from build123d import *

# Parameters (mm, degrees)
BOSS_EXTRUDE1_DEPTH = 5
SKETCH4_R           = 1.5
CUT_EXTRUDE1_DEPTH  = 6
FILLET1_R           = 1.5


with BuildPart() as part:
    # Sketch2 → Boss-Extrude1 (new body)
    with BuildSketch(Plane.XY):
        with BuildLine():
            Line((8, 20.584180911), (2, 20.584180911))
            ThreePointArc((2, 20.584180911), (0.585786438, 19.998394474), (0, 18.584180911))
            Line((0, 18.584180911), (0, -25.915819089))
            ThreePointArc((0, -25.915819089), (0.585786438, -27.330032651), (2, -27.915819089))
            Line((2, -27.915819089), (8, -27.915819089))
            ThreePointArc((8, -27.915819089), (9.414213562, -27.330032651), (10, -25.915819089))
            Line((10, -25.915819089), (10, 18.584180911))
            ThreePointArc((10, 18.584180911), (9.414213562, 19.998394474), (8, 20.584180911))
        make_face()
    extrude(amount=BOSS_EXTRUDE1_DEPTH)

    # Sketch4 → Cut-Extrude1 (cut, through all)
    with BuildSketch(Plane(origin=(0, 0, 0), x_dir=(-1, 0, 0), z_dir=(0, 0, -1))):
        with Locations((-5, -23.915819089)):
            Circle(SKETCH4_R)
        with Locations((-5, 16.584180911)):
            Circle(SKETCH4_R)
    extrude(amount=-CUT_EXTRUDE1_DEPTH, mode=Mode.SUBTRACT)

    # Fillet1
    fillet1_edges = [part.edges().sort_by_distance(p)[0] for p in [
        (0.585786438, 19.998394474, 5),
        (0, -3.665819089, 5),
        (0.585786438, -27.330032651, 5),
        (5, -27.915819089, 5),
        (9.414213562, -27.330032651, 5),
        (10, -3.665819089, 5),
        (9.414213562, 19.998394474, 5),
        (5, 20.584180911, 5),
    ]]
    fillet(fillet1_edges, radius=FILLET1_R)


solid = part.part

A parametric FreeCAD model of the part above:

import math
import FreeCAD as App
import Part
import Sketcher
from FreeCAD import Vector
Q = App.Units.Quantity


def edges_at(feature, points):
    """Names of the edges that pass closest to the given points."""
    edges = feature.Shape.Edges
    near = lambda p: min(range(len(edges)), key=lambda i: edges[i].distToShape(Part.Vertex(*p))[0])
    return sorted({f"Edge{near(p) + 1}" for p in points})

doc = App.newDocument("Part")
body = doc.addObject("PartDesign::Body", "Body")

# Sketch on XY plane
sketch1 = doc.addObject("Sketcher::SketchObject", "Sketch")
body.addObject(sketch1)
sketch1.AttachmentSupport = (doc.XY_Plane, [""])
sketch1.MapMode = "FlatFace"
sketch1.addGeometry([
    Part.LineSegment(Vector(8, 20.584181, 0), Vector(2, 20.584181, 0)),  # 0
    Part.ArcOfCircle(Part.Circle(Vector(2, 18.584181, 0), Vector(0, 0, 1), 2), math.radians(90), math.radians(180)),  # 1
    Part.LineSegment(Vector(0, 18.584181, 0), Vector(0, -25.915819, 0)),  # 2
    Part.ArcOfCircle(Part.Circle(Vector(2, -25.915819, 0), Vector(0, 0, 1), 2), math.radians(-180), math.radians(-90)),  # 3
    Part.LineSegment(Vector(2, -27.915819, 0), Vector(8, -27.915819, 0)),  # 4
    Part.ArcOfCircle(Part.Circle(Vector(8, -25.915819, 0), Vector(0, 0, 1), 2), math.radians(-90), math.radians(0)),  # 5
    Part.LineSegment(Vector(10, -25.915819, 0), Vector(10, 18.584181, 0)),  # 6
    Part.ArcOfCircle(Part.Circle(Vector(8, 18.584181, 0), Vector(0, 0, 1), 2), math.radians(0), math.radians(90)),  # 7
], False)
sketch1.addConstraint([
    Sketcher.Constraint("Tangent", 0, 2, 1, 1),
    Sketcher.Constraint("Tangent", 1, 2, 2, 1),
    Sketcher.Constraint("Tangent", 2, 2, 3, 1),
    Sketcher.Constraint("Tangent", 3, 2, 4, 1),
    Sketcher.Constraint("Tangent", 4, 2, 5, 1),
    Sketcher.Constraint("Tangent", 5, 2, 6, 1),
    Sketcher.Constraint("Tangent", 6, 2, 7, 1),
    Sketcher.Constraint("Tangent", 7, 2, 0, 1),
    Sketcher.Constraint("Horizontal", 0),
    Sketcher.Constraint("Vertical", 2),
    Sketcher.Constraint("Horizontal", 4),
    Sketcher.Constraint("Vertical", 6),
    Sketcher.Constraint("Equal", 1, 3),
    Sketcher.Constraint("Equal", 3, 5),
    Sketcher.Constraint("Equal", 5, 7),
    Sketcher.Constraint("PointOnObject", 1, 2, -2),
    Sketcher.Constraint("Radius", 1, Q("2 mm")),
    Sketcher.Constraint("DistanceX", 0, 2, 0, 1, Q("6 mm")),
    Sketcher.Constraint("DistanceY", 2, 2, 2, 1, Q("44.5 mm")),
    Sketcher.Constraint("DistanceY", -1, 1, 1, 3, Q("18.584181 mm")),
])
pad1 = doc.addObject("PartDesign::Pad", "Pad")
body.addObject(pad1)
pad1.Profile = sketch1
pad1.Length = 5

# Sketch on XY plane
sketch2 = doc.addObject("Sketcher::SketchObject", "Sketch001")
body.addObject(sketch2)
sketch2.AttachmentSupport = (doc.XY_Plane, [""])
sketch2.MapMode = "FlatFace"
sketch2.addGeometry([
    Part.Circle(Vector(5, -23.915819, 0), Vector(0, 0, 1), 1.5),
    Part.Circle(Vector(5, 16.584181, 0), Vector(0, 0, 1), 1.5),
], False)
sketch2.addConstraint([
    Sketcher.Constraint("Equal", 0, 1),
    Sketcher.Constraint("Vertical", 0, 3, 1, 3),
    Sketcher.Constraint("Diameter", 0, Q("3 mm")),
    Sketcher.Constraint("DistanceX", -1, 1, 0, 3, Q("5 mm")),
    Sketcher.Constraint("DistanceY", 0, 3, 1, 3, Q("40.5 mm")),
    Sketcher.Constraint("DistanceY", 0, 3, -1, 1, Q("23.915819 mm")),
])
pocket1 = doc.addObject("PartDesign::Pocket", "Pocket")
body.addObject(pocket1)
pocket1.Profile = sketch2
pocket1.Type = "ThroughAll"
pocket1.Reversed = True
doc.recompute()

fillet = doc.addObject("PartDesign::Fillet", "Fillet")
body.addObject(fillet)
fillet.Base = (pocket1, edges_at(pocket1, [
    (0.586, 19.998, 5),
    (0, -3.666, 5),
    (0.586, -27.33, 5),
    (5, -27.916, 5),
    (9.414, -27.33, 5),
    (10, -3.666, 5),
    (9.414, 19.998, 5),
    (5, 20.584, 5),
]))
fillet.Radius = 1.5

doc.recompute()
